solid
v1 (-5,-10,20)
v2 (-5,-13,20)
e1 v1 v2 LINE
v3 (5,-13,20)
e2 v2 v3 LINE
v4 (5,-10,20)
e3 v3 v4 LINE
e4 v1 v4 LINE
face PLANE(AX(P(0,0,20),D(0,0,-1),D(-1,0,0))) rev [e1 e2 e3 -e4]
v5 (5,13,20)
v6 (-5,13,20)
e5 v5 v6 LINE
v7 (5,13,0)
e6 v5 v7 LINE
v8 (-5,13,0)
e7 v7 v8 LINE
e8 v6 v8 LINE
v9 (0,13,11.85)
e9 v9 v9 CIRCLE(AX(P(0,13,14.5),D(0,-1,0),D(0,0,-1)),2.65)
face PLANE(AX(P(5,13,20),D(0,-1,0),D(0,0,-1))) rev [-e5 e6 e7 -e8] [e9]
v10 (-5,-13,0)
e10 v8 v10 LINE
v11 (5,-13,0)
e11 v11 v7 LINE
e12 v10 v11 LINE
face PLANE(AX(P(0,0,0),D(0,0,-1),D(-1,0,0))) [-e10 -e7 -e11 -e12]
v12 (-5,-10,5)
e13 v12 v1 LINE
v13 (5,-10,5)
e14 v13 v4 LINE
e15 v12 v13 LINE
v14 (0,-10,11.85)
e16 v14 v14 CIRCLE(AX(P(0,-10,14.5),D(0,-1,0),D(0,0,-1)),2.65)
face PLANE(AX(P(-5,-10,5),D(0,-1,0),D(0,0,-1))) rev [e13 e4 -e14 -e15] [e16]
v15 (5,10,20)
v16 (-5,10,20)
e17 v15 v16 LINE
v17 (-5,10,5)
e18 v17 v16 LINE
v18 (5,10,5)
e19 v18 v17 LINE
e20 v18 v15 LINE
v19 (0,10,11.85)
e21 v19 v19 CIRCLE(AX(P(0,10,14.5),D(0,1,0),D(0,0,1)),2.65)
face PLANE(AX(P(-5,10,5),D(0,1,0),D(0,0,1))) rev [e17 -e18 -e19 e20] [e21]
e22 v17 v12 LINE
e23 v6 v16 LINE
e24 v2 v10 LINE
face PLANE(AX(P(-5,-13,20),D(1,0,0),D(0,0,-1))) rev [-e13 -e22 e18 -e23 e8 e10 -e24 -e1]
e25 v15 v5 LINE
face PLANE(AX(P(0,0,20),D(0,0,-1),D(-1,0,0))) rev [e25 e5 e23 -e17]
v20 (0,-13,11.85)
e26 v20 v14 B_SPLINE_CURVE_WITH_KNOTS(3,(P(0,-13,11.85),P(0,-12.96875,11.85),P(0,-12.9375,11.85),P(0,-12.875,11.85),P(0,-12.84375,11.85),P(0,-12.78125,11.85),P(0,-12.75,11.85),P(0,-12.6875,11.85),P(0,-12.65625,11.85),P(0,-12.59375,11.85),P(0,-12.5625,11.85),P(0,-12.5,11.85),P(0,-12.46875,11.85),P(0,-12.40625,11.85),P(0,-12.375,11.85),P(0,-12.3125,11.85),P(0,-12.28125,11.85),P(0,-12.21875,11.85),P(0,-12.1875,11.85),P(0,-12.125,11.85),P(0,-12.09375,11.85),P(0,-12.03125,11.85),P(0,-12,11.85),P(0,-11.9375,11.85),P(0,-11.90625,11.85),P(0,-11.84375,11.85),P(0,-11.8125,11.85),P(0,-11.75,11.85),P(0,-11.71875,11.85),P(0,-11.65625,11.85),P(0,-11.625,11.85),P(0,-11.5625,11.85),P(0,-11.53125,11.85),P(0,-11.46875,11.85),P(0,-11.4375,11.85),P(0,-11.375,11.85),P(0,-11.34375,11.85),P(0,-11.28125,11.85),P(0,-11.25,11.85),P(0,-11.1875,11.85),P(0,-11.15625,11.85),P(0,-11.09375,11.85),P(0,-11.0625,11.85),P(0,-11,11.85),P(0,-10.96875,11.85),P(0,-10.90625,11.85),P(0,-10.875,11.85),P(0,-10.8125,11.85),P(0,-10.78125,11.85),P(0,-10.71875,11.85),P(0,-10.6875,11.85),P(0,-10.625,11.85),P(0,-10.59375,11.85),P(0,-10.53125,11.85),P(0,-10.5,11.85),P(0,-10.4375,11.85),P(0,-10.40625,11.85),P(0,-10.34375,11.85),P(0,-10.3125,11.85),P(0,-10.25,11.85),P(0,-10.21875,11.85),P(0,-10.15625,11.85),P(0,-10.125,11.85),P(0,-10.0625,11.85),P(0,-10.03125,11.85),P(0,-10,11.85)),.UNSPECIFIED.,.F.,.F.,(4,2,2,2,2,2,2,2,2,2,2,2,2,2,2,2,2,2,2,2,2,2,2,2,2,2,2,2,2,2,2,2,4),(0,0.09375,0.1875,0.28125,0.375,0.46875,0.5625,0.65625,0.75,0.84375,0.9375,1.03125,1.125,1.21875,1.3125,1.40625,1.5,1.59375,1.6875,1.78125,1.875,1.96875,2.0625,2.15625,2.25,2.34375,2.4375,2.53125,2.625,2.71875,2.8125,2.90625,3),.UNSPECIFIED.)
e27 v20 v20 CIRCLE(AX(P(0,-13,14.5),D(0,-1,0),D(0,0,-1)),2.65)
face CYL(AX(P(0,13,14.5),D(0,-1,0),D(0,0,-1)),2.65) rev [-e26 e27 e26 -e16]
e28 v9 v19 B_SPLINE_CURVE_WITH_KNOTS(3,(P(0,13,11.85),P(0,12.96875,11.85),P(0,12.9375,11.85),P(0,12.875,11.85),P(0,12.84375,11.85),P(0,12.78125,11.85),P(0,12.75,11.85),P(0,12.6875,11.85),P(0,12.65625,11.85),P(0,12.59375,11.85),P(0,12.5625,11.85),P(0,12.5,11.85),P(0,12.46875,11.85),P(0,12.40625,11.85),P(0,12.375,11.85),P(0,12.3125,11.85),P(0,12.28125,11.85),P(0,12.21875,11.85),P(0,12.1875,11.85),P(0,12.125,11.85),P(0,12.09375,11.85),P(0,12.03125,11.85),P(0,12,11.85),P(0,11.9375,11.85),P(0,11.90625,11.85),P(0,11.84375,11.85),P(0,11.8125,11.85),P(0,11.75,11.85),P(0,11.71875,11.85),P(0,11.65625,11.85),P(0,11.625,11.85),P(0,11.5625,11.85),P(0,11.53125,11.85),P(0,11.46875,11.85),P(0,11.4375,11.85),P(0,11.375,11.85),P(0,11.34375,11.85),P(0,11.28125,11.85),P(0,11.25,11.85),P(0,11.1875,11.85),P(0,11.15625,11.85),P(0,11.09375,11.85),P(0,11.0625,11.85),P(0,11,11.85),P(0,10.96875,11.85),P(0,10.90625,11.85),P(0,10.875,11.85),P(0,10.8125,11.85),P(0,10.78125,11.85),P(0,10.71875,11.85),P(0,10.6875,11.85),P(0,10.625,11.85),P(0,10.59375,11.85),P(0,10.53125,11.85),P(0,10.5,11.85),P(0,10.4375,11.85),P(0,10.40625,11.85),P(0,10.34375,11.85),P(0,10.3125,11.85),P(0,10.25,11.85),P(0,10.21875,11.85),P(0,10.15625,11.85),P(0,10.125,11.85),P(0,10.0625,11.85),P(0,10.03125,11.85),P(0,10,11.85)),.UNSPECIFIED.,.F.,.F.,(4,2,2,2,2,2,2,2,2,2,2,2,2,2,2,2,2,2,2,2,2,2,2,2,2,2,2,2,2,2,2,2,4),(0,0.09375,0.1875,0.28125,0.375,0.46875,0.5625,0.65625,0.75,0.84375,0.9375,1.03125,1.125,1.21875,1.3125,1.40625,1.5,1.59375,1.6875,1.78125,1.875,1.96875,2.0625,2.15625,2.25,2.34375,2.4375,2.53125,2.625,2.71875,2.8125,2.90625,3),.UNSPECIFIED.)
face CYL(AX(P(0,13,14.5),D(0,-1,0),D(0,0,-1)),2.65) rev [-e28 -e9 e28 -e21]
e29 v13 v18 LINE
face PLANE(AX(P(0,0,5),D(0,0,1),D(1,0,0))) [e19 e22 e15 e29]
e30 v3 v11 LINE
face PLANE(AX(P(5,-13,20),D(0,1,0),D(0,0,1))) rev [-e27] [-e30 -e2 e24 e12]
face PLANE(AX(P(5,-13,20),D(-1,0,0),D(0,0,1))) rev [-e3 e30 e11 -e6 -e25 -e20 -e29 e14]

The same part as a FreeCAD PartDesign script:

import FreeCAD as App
import Part
import Sketcher
from FreeCAD import Vector
Q = App.Units.Quantity

doc = App.newDocument("Part")
params = doc.addObject("Spreadsheet::Sheet", "Params")
for row, (alias, value) in enumerate([
    ("sketch1_width", "10 mm"),
    ("sketch1_height", "26 mm"),
    ("pad1_length", "20 mm"),
    ("sketch2_width", "10 mm"),
    ("sketch2_height", "20 mm"),
    ("pocket1_length", "15 mm"),
    ("sketch3_diameter", "5.3 mm"),
], start=1):
    params.set(f"A{row}", alias)
    params.set(f"B{row}", "=" + value)
    params.setAlias(f"B{row}", alias)

body = doc.addObject("PartDesign::Body", "Body")

sketch1 = doc.addObject("Sketcher::SketchObject", "Sketch")
body.addObject(sketch1)
sketch1.AttachmentSupport = (doc.XY_Plane, [""])
sketch1.MapMode = "FlatFace"
sketch1.addGeometry([
    Part.LineSegment(Vector(-5, -13, 0), Vector(5, -13, 0)),
    Part.LineSegment(Vector(5, -13, 0), Vector(5, 13, 0)),
    Part.LineSegment(Vector(5, 13, 0), Vector(-5, 13, 0)),
    Part.LineSegment(Vector(-5, 13, 0), Vector(-5, -13, 0)),
], False)
sketch1.addConstraint([
    Sketcher.Constraint("Coincident", 0, 2, 1, 1),
    Sketcher.Constraint("Coincident", 1, 2, 2, 1),
    Sketcher.Constraint("Coincident", 2, 2, 3, 1),
    Sketcher.Constraint("Coincident", 3, 2, 0, 1),
    Sketcher.Constraint("Horizontal", 0),
    Sketcher.Constraint("Vertical", 1),
    Sketcher.Constraint("Horizontal", 2),
    Sketcher.Constraint("Vertical", 3),
    Sketcher.Constraint("Symmetric", 0, 2, 2, 2, -1, 1),
    Sketcher.Constraint("DistanceX", 0, 1, 0, 2, Q("10 mm")),
    Sketcher.Constraint("DistanceY", 1, 1, 1, 2, Q("26 mm")),
])
sketch1.setExpression("Constraints[9]", "Params.sketch1_width")
sketch1.setExpression("Constraints[10]", "Params.sketch1_height")
pad1 = doc.addObject("PartDesign::Pad", "Pad")
body.addObject(pad1)
pad1.Profile = sketch1
pad1.setExpression("Length", "Params.pad1_length")

sketch2 = doc.addObject("Sketcher::SketchObject", "Sketch001")
body.addObject(sketch2)
sketch2.AttachmentSupport = (doc.XY_Plane, [""])
sketch2.MapMode = "FlatFace"
sketch2.AttachmentOffset = App.Placement(Vector(0, 0, 20), App.Rotation())
sketch2.addGeometry([
    Part.LineSegment(Vector(-5, 10, 0), Vector(-5, -10, 0)),
    Part.LineSegment(Vector(-5, -10, 0), Vector(5, -10, 0)),
    Part.LineSegment(Vector(5, -10, 0), Vector(5, 10, 0)),
    Part.LineSegment(Vector(5, 10, 0), Vector(-5, 10, 0)),
], False)
sketch2.addConstraint([
    Sketcher.Constraint("Coincident", 0, 2, 1, 1),
    Sketcher.Constraint("Coincident", 1, 2, 2, 1),
    Sketcher.Constraint("Coincident", 2, 2, 3, 1),
    Sketcher.Constraint("Coincident", 3, 2, 0, 1),
    Sketcher.Constraint("Vertical", 0),
    Sketcher.Constraint("Horizontal", 1),
    Sketcher.Constraint("Vertical", 2),
    Sketcher.Constraint("Horizontal", 3),
    Sketcher.Constraint("Symmetric", 0, 2, 2, 2, -1, 1),
    Sketcher.Constraint("DistanceX", 1, 1, 1, 2, Q("10 mm")),
    Sketcher.Constraint("DistanceY", 0, 2, 0, 1, Q("20 mm")),
])
sketch2.setExpression("Constraints[9]", "Params.sketch2_width")
sketch2.setExpression("Constraints[10]", "Params.sketch2_height")
pocket1 = doc.addObject("PartDesign::Pocket", "Pocket")
body.addObject(pocket1)
pocket1.Profile = sketch2
pocket1.setExpression("Length", "Params.pocket1_length")

sketch3 = doc.addObject("Sketcher::SketchObject", "Sketch002")
body.addObject(sketch3)
sketch3.AttachmentSupport = (doc.XZ_Plane, [""])
sketch3.MapMode = "FlatFace"
sketch3.AttachmentOffset = App.Placement(Vector(0, 0, 13), App.Rotation())
sketch3.addGeometry(Part.Circle(Vector(0, 14.5, 0), Vector(0, 0, 1), 2.6), False)
sketch3.addConstraint([
    Sketcher.Constraint("PointOnObject", 0, 3, -2),
    Sketcher.Constraint("Diameter", 0, Q("5.3 mm")),
    Sketcher.Constraint("DistanceY", -1, 1, 0, 3, Q("14.5 mm")),
])
sketch3.setExpression("Constraints[1]", "Params.sketch3_diameter")
pocket2 = doc.addObject("PartDesign::Pocket", "Pocket001")
body.addObject(pocket2)
pocket2.Profile = sketch3
pocket2.Type = "ThroughAll"

doc.recompute()
